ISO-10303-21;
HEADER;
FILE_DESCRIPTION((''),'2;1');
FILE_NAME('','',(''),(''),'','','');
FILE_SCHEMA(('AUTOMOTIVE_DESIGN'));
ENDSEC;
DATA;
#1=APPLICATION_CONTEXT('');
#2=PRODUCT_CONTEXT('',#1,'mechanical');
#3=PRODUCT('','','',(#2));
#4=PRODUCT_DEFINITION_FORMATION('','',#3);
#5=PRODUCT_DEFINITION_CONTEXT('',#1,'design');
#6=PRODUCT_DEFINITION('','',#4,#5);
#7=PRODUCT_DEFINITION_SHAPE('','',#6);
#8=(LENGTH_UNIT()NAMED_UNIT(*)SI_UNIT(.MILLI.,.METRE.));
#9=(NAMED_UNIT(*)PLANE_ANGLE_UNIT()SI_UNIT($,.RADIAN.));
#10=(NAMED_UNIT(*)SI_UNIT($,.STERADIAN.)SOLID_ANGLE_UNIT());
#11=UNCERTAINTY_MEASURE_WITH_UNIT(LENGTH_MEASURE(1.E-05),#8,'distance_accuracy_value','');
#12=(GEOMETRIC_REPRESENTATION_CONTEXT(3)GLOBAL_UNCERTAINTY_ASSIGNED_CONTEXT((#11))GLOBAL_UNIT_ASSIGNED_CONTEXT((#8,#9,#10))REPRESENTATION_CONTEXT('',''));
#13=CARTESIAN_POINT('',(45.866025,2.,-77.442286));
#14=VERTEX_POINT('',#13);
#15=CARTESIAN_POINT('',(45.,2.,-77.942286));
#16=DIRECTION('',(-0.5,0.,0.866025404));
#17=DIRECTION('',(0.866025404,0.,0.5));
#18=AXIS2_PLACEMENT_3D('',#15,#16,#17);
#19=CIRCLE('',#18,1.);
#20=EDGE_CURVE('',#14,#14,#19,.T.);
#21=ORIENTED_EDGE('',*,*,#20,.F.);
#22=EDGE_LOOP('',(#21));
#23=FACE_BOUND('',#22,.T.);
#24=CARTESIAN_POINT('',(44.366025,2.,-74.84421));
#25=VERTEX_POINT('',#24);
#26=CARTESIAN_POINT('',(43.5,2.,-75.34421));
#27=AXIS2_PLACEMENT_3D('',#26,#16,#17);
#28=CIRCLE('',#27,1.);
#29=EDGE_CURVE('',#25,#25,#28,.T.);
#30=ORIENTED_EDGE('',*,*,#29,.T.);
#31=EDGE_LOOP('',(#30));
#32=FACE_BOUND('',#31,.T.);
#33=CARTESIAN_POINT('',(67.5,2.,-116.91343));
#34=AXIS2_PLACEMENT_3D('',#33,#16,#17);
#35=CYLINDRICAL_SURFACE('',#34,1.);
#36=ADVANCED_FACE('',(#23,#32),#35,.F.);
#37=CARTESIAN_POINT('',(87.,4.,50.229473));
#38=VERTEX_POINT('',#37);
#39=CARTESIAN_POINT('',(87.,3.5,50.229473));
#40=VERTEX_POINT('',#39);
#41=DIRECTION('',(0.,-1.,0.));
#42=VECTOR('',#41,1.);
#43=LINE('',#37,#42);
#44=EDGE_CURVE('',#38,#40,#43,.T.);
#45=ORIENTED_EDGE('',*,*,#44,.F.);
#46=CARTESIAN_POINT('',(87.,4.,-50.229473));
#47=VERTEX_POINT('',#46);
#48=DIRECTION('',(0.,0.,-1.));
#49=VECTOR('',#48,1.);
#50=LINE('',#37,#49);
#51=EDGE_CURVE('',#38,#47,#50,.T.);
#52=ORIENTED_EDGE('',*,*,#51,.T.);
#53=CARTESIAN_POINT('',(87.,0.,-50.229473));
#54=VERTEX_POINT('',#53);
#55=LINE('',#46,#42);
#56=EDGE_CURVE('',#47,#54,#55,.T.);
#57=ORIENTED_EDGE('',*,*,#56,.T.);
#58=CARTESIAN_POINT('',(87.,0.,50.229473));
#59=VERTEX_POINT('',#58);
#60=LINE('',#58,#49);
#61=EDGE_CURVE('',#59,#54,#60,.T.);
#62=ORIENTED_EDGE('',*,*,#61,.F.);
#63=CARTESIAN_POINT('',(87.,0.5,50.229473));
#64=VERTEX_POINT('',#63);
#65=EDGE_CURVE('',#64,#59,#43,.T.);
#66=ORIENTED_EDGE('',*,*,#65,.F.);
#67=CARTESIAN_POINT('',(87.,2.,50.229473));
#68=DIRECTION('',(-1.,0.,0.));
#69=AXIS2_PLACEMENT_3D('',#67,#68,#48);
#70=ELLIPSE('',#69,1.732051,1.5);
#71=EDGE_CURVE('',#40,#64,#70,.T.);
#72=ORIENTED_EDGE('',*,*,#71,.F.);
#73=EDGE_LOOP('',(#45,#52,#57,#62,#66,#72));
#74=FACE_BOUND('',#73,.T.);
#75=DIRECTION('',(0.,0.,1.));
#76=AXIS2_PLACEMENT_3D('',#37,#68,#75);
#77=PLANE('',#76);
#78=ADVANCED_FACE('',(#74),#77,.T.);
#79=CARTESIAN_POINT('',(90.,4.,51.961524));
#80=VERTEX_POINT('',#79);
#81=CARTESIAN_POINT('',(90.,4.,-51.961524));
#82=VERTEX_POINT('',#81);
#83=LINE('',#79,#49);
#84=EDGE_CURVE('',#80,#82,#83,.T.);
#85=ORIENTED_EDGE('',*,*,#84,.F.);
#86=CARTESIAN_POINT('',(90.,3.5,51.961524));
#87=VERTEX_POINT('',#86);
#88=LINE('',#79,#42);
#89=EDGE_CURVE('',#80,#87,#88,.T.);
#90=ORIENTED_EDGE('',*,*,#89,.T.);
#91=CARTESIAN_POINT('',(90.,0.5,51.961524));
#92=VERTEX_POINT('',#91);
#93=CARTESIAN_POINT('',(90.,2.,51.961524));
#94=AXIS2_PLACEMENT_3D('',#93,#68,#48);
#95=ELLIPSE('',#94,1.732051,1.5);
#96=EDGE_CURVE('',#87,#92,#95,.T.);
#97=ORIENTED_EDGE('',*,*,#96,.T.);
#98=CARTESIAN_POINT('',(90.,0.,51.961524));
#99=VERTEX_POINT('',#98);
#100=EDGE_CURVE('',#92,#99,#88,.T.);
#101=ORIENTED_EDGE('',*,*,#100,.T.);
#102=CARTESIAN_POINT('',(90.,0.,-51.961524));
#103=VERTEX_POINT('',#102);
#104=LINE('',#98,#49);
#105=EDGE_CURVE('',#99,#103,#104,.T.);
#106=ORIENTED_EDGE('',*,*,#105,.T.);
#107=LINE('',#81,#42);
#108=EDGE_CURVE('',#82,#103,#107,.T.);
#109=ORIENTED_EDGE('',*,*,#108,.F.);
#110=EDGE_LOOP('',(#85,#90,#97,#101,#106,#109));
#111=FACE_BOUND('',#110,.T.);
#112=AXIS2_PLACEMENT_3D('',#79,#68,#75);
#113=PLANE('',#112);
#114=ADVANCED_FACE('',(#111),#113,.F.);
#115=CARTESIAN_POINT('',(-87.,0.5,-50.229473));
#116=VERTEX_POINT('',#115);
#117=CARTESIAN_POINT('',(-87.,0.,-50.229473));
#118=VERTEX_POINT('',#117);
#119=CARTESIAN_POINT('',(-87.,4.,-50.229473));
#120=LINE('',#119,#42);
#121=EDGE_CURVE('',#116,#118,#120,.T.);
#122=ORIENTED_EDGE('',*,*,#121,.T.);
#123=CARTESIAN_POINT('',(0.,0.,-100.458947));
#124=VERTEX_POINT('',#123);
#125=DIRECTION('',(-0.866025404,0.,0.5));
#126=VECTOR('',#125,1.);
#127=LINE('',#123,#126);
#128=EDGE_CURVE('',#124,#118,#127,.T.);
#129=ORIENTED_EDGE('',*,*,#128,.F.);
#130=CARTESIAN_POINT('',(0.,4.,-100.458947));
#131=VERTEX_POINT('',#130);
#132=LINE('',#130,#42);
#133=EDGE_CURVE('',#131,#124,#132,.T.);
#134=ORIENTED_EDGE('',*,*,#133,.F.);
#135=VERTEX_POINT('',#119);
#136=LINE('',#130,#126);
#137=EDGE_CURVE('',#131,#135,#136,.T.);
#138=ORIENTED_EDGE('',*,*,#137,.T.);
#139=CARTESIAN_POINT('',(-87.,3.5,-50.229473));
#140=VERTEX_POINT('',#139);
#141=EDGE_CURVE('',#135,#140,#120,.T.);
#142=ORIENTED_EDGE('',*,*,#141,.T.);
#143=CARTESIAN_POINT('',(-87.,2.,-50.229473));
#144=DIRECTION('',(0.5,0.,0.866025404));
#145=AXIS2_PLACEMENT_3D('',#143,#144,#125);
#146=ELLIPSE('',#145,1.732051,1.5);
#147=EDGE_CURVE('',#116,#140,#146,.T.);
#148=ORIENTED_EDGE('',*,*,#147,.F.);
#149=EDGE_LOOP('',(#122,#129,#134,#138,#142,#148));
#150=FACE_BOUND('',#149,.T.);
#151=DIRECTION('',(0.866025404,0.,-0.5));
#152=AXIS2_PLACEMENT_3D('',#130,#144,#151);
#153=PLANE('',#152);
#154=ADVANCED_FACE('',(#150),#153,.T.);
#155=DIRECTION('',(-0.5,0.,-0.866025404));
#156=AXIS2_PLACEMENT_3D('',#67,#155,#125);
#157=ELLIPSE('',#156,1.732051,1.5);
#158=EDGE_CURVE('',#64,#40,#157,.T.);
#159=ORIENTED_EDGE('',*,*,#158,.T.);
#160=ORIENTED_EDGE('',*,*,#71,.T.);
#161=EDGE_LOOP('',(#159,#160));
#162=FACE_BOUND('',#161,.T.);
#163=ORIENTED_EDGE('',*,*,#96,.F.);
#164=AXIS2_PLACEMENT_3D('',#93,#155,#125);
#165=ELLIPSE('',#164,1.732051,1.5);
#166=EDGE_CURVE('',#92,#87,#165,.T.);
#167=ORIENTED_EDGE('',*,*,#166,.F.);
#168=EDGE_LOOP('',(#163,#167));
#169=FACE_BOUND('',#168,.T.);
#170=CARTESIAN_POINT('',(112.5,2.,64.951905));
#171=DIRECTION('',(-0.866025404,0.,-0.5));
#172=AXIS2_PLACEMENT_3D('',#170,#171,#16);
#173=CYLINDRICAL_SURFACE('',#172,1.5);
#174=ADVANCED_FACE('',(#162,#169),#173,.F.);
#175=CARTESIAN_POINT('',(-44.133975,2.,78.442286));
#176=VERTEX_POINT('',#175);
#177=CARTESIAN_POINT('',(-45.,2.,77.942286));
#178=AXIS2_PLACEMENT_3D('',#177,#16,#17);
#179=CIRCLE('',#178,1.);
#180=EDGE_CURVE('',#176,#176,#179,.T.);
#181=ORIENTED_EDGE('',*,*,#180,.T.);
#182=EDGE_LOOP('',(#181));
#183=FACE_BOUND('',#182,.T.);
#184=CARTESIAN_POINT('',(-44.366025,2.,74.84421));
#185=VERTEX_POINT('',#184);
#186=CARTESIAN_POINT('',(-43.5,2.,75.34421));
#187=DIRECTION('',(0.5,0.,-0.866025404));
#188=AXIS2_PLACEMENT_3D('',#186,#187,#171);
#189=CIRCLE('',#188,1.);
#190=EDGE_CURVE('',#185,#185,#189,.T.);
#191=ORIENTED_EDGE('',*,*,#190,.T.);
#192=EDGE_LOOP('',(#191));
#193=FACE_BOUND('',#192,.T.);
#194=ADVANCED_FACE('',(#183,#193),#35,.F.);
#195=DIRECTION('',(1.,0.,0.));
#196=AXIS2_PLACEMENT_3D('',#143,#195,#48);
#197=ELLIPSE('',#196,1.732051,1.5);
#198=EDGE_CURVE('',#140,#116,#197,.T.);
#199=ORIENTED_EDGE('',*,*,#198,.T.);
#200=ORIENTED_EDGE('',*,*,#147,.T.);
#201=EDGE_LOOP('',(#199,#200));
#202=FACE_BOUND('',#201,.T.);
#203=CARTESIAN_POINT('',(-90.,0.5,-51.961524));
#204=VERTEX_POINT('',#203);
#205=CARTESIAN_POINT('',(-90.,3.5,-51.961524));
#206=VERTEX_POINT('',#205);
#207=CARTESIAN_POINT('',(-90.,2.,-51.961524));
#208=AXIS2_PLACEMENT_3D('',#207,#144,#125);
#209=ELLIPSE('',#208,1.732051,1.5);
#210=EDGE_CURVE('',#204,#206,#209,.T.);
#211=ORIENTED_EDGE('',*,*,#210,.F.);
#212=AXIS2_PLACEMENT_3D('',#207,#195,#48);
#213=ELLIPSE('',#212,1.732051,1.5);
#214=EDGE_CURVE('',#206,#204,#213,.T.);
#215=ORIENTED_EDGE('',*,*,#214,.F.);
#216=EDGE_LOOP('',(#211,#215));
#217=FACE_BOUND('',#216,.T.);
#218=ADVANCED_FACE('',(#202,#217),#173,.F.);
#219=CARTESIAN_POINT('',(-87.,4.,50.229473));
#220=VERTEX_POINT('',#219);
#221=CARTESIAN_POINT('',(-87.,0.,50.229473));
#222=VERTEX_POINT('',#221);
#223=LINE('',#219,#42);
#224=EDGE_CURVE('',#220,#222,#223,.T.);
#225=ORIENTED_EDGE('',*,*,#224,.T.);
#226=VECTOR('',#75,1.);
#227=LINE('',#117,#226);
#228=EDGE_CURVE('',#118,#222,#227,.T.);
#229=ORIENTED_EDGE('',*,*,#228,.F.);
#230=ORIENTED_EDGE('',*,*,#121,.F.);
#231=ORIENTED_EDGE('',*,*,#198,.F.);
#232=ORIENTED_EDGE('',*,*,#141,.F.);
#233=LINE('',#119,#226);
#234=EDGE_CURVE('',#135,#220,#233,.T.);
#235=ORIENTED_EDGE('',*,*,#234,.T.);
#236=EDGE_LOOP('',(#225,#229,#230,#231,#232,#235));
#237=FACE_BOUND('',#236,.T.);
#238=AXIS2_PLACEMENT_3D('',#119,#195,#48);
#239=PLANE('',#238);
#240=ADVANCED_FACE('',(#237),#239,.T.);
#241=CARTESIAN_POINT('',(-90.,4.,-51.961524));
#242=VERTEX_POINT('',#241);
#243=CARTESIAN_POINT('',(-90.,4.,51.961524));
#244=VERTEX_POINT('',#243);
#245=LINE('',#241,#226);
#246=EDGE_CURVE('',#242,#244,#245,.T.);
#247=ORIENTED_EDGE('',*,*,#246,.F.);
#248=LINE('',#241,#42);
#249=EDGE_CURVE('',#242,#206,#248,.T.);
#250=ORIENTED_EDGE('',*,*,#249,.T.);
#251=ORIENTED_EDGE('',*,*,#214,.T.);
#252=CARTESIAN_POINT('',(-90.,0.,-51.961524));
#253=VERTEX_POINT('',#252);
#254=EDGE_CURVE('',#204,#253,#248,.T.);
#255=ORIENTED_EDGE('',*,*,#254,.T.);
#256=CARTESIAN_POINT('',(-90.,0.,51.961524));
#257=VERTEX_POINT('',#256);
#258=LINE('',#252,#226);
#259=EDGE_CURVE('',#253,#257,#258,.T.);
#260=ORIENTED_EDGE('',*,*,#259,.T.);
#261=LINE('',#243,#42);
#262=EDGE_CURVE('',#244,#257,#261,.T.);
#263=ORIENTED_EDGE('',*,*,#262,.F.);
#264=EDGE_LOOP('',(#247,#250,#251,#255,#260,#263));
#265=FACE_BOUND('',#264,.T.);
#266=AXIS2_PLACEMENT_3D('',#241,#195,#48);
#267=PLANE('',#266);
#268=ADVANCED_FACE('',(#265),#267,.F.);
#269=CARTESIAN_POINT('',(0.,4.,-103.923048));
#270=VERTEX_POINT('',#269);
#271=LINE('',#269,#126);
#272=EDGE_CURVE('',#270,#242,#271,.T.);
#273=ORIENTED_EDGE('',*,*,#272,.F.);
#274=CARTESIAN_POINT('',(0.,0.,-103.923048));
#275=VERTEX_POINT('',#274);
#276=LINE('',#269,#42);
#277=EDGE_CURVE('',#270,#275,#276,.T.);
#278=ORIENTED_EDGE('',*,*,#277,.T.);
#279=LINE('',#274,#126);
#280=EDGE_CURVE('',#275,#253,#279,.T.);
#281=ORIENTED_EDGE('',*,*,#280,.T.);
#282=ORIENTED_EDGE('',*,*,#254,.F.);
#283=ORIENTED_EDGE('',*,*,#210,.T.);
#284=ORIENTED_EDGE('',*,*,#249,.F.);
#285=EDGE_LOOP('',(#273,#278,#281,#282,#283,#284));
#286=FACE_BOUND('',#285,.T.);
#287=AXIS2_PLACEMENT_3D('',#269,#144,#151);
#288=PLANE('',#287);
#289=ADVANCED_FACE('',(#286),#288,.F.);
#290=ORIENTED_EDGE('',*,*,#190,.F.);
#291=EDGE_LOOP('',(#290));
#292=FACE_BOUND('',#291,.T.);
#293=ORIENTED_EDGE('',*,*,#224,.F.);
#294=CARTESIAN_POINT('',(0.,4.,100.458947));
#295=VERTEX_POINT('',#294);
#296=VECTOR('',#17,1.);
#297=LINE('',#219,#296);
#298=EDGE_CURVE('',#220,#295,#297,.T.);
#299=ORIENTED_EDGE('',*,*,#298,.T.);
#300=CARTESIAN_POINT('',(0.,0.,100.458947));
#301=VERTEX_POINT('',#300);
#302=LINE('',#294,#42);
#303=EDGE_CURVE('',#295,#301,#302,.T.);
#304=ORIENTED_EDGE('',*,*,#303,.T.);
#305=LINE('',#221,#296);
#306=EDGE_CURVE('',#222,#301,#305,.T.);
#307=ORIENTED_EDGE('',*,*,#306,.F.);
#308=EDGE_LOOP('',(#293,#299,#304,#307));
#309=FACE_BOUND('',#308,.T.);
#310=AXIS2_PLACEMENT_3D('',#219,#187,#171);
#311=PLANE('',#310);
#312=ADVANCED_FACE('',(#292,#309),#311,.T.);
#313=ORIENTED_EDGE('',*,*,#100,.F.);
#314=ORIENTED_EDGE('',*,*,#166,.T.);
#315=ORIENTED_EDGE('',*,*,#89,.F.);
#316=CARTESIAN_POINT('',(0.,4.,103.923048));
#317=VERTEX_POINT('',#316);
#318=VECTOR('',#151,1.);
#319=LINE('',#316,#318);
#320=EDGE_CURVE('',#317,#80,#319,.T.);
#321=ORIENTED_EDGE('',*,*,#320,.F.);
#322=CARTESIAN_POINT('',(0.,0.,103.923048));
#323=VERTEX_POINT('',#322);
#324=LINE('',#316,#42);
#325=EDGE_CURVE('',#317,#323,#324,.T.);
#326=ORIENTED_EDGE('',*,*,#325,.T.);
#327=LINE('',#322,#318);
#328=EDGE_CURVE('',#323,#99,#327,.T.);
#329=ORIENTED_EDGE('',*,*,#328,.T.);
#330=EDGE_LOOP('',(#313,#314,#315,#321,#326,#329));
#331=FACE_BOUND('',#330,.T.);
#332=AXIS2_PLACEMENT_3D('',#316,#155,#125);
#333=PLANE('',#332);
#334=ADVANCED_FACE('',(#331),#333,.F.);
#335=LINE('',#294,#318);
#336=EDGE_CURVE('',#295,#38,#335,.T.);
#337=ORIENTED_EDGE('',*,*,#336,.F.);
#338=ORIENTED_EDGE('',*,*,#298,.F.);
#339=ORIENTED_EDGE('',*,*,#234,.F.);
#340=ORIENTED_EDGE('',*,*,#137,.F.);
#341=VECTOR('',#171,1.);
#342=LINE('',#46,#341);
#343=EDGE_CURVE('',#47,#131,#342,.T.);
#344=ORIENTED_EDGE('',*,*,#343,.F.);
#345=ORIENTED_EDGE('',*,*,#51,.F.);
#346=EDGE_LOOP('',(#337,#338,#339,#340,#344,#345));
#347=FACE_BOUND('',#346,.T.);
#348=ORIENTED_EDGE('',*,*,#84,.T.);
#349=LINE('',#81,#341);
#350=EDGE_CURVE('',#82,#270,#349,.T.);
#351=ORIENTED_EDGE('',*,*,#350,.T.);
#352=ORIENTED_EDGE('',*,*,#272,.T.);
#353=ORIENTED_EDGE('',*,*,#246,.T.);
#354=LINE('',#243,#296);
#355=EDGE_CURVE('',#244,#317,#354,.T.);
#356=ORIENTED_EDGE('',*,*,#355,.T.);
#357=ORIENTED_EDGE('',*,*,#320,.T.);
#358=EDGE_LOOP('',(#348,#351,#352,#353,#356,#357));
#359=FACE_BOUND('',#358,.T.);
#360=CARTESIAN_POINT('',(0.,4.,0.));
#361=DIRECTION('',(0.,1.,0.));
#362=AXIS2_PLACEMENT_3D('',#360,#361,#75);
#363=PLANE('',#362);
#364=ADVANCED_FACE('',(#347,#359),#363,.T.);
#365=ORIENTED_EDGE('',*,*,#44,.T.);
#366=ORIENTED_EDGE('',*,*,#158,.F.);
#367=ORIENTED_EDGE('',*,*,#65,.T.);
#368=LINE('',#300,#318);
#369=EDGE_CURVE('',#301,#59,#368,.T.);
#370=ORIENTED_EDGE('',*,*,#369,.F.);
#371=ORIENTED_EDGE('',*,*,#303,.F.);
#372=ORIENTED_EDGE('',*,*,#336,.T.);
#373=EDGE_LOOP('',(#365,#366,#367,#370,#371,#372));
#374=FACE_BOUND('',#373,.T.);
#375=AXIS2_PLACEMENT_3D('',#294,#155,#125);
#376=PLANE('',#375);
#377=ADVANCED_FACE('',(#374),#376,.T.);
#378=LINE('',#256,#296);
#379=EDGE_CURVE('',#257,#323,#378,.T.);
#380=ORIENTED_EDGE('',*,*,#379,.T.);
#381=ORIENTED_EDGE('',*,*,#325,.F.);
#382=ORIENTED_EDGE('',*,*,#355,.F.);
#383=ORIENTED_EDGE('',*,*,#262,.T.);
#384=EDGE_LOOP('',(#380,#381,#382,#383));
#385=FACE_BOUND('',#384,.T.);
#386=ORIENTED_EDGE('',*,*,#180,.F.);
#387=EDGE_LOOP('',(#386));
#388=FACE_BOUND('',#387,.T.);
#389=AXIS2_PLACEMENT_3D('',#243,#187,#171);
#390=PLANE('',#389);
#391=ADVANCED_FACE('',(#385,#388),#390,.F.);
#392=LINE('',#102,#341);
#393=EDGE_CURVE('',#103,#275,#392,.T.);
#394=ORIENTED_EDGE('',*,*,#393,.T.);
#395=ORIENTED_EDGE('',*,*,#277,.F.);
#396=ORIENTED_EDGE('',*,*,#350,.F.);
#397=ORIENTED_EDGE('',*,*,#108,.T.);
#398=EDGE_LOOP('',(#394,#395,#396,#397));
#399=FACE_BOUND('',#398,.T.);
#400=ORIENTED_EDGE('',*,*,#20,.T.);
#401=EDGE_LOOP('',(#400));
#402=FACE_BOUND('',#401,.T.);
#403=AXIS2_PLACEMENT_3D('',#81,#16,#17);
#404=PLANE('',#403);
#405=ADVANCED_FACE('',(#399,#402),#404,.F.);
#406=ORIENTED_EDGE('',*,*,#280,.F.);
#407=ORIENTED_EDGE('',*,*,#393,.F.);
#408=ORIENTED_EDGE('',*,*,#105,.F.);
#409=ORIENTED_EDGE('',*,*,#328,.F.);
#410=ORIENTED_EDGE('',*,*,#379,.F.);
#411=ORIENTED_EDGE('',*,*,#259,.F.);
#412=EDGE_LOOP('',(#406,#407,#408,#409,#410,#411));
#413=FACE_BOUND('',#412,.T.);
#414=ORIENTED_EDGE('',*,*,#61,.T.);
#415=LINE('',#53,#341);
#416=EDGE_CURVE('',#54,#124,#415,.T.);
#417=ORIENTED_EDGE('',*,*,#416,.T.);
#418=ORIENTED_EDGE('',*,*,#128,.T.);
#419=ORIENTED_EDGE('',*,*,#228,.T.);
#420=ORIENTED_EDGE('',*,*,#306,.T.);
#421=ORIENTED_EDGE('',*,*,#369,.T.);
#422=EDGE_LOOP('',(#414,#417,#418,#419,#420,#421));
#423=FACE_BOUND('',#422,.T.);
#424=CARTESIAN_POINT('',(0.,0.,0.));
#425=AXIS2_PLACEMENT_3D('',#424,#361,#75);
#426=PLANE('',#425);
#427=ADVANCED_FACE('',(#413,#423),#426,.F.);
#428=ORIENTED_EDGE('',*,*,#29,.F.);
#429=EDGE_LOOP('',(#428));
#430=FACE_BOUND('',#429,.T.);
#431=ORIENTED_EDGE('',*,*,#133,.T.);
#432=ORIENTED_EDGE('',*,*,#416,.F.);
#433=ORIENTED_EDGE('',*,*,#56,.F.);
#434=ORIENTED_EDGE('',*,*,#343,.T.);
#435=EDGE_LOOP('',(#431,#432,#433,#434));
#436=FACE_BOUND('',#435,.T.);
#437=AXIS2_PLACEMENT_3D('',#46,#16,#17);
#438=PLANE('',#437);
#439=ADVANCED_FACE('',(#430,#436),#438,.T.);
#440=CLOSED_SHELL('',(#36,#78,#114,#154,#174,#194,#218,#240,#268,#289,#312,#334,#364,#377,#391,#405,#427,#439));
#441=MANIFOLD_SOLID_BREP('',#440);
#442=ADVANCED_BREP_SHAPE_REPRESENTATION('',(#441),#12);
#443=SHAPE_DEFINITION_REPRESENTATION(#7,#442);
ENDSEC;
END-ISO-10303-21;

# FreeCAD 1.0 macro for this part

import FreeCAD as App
import Part
import Sketcher
from FreeCAD import Vector
Q = App.Units.Quantity

doc = App.newDocument("Part")
params = doc.addObject("Spreadsheet::Sheet", "Params")
for row, (alias, value) in enumerate([
    ("pad1_length", "4 mm"),
    ("sketch2_diameter", "2 mm"),
    ("sketch3_diameter", "3 mm"),
], start=1):
    params.set(f"A{row}", alias)
    params.set(f"B{row}", "=" + value)
    params.setAlias(f"B{row}", alias)

body = doc.addObject("PartDesign::Body", "Body")

# Sketch on XZ plane
sketch1 = doc.addObject("Sketcher::SketchObject", "Sketch")
body.addObject(sketch1)
sketch1.AttachmentSupport = (doc.XZ_Plane, [""])
sketch1.MapMode = "FlatFace"
sketch1.addGeometry([
    Part.LineSegment(Vector(90, 51.961524, 0), Vector(90, -51.961524, 0)),  # 0
    Part.LineSegment(Vector(90, -51.961524, 0), Vector(0, -103.923048, 0)),  # 1
    Part.LineSegment(Vector(0, -103.923048, 0), Vector(-90, -51.961524, 0)),  # 2
    Part.LineSegment(Vector(-90, -51.961524, 0), Vector(-90, 51.961524, 0)),  # 3
    Part.LineSegment(Vector(-90, 51.961524, 0), Vector(0, 103.923048, 0)),  # 4
    Part.LineSegment(Vector(0, 103.923048, 0), Vector(90, 51.961524, 0)),  # 5
    Part.LineSegment(Vector(0, -100.458947, 0), Vector(87, -50.229473, 0)),  # 6
    Part.LineSegment(Vector(87, -50.229473, 0), Vector(87, 50.229473, 0)),  # 7
    Part.LineSegment(Vector(87, 50.229473, 0), Vector(0, 100.458947, 0)),  # 8
    Part.LineSegment(Vector(0, 100.458947, 0), Vector(-87, 50.229473, 0)),  # 9
    Part.LineSegment(Vector(-87, 50.229473, 0), Vector(-87, -50.229473, 0)),  # 10
    Part.LineSegment(Vector(-87, -50.229473, 0), Vector(0, -100.458947, 0)),  # 11
], False)
sketch1.addConstraint([
    Sketcher.Constraint("Coincident", 0, 2, 1, 1),
    Sketcher.Constraint("Coincident", 1, 2, 2, 1),
    Sketcher.Constraint("Coincident", 2, 2, 3, 1),
    Sketcher.Constraint("Coincident", 3, 2, 4, 1),
    Sketcher.Constraint("Coincident", 4, 2, 5, 1),
    Sketcher.Constraint("Coincident", 5, 2, 0, 1),
    Sketcher.Constraint("Coincident", 6, 2, 7, 1),
    Sketcher.Constraint("Coincident", 7, 2, 8, 1),
    Sketcher.Constraint("Coincident", 8, 2, 9, 1),
    Sketcher.Constraint("Coincident", 9, 2, 10, 1),
    Sketcher.Constraint("Coincident", 10, 2, 11, 1),
    Sketcher.Constraint("Coincident", 11, 2, 6, 1),
    Sketcher.Constraint("Vertical", 0),
    Sketcher.Constraint("Vertical", 3),
    Sketcher.Constraint("Vertical", 7),
    Sketcher.Constraint("Vertical", 10),
    Sketcher.Constraint("Symmetric", 0, 2, 3, 2, -1, 1),
    Sketcher.Constraint("Symmetric", 1, 2, 4, 2, -1, 1),
    Sketcher.Constraint("Symmetric", 6, 2, 9, 2, -1, 1),
    Sketcher.Constraint("Symmetric", 8, 2, 11, 2, -1, 1),
    Sketcher.Constraint("PointOnObject", 1, 2, -2),
    Sketcher.Constraint("PointOnObject", 8, 2, -2),
    Sketcher.Constraint("Parallel", 2, 5),
    Sketcher.Constraint("Parallel", 4, 6),
    Sketcher.Constraint("Parallel", 5, 8),
    Sketcher.Constraint("Parallel", 8, 11),
    Sketcher.Constraint("Horizontal", 0, 2, 2, 2),
    Sketcher.Constraint("Angle", 1, Q("-150 deg")),
    Sketcher.Constraint("DistanceX", -1, 1, 0, 2, 90.0),
    Sketcher.Constraint("DistanceX", -1, 1, 6, 2, 87.0),
    Sketcher.Constraint("DistanceY", 8, 2, 4, 2, 3.464101),
    Sketcher.Constraint("DistanceY", 0, 2, 0, 1, 103.923048),
])
pad1 = doc.addObject("PartDesign::Pad", "Pad")
body.addObject(pad1)
pad1.Profile = sketch1
pad1.setExpression("Length", "Params.pad1_length")
pad1.Reversed = True

# Sketch on an angled plane
sketch2 = doc.addObject("Sketcher::SketchObject", "Sketch001")
body.addObject(sketch2)
sketch2.Placement = App.Placement(Vector(-45, 0, 77.942286), App.Rotation(Vector(0.866025404, 0, 0.5), Vector(0, 1, 0), Vector(-0.5, 0, 0.866025404), "ZXY"))
sketch2.addGeometry(Part.Circle(Vector(0, 2, 0), Vector(0, 0, 1), 1), False)
sketch2.addConstraint([
    Sketcher.Constraint("PointOnObject", 0, 3, -2),
    Sketcher.Constraint("Diameter", 0, 2.0),
    Sketcher.Constraint("DistanceY", -1, 1, 0, 3, 2.0),
])
sketch2.setExpression("Constraints[1]", "Params.sketch2_diameter")
pocket1 = doc.addObject("PartDesign::Pocket", "Pocket")
body.addObject(pocket1)
pocket1.Profile = sketch2
pocket1.Type = "ThroughAll"

# Sketch on an angled plane
sketch3 = doc.addObject("Sketcher::SketchObject", "Sketch002")
body.addObject(sketch3)
sketch3.Placement = App.Placement(Vector(-43.5, 0, -25.114737), App.Rotation(Vector(-0.5, 0, 0.866025404), Vector(0, 1, 0), Vector(-0.866025404, 0, -0.5), "ZXY"))
sketch3.addGeometry(Part.Circle(Vector(0, 2, 0), Vector(0, 0, 1), 1.5), False)
sketch3.addConstraint([
    Sketcher.Constraint("PointOnObject", 0, 3, -2),
    Sketcher.Constraint("Diameter", 0, 3.0),
    Sketcher.Constraint("DistanceY", -1, 1, 0, 3, 2.0),
])
sketch3.setExpression("Constraints[1]", "Params.sketch3_diameter")
pocket2 = doc.addObject("PartDesign::Pocket", "Pocket001")
body.addObject(pocket2)
pocket2.Profile = sketch3
pocket2.Type = "ThroughAll"
pocket2.Midplane = True

doc.recompute()
